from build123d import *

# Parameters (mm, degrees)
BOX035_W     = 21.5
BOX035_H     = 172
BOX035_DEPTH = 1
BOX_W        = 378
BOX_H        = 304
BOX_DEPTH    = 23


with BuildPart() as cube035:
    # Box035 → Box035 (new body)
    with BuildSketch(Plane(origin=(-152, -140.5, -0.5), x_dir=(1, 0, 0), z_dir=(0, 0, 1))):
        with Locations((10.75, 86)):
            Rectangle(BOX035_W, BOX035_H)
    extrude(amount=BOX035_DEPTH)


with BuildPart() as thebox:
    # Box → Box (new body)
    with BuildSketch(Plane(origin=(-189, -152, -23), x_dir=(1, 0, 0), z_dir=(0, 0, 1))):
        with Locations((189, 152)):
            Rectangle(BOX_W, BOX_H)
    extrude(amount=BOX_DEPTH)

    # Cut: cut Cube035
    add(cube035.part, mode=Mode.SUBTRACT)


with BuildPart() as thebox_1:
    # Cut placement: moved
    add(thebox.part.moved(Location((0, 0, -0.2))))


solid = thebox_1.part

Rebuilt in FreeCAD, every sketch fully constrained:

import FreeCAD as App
import Part
import Sketcher
Q = App.Units.Quantity

doc = App.newDocument("Part")
body = doc.addObject("PartDesign::Body", "Body")

# Sketch on XY plane
sketch1 = doc.addObject("Sketcher::SketchObject", "Sketch")
body.addObject(sketch1)
sketch1.AttachmentSupport = (doc.XY_Plane, [""])
sketch1.MapMode = "FlatFace"
sketch1.AttachmentOffset = App.Placement(App.Vector(0, 0, -0.5), App.Rotation())
sketch1.addGeometry([
    Part.LineSegment(App.Vector(-152, 32, 0), App.Vector(-152, -140, 0)),
    Part.LineSegment(App.Vector(-152, -140, 0), App.Vector(-130, -140, 0)),
    Part.LineSegment(App.Vector(-130, -140, 0), App.Vector(-130, 32, 0)),
    Part.LineSegment(App.Vector(-130, 32, 0), App.Vector(-152, 32, 0)),
], False)
sketch1.addConstraint([
    Sketcher.Constraint("Coincident", 0, 2, 1, 1),
    Sketcher.Constraint("Coincident", 1, 2, 2, 1),
    Sketcher.Constraint("Coincident", 2, 2, 3, 1),
    Sketcher.Constraint("Coincident", 3, 2, 0, 1),
    Sketcher.Constraint("Vertical", 0),
    Sketcher.Constraint("Horizontal", 1),
    Sketcher.Constraint("Vertical", 2),
    Sketcher.Constraint("Horizontal", 3),
    Sketcher.Constraint("DistanceY", 0, 2, 0, 1, Q("172 mm")),
    Sketcher.Constraint("DistanceX", 1, 1, 1, 2, Q("21.5 mm")),
    Sketcher.Constraint("DistanceX", 0, 2, -1, 1, Q("152 mm")),
    Sketcher.Constraint("DistanceY", 0, 2, -1, 1, Q("140.5 mm")),
])
pad1 = doc.addObject("PartDesign::Pad", "Pad")
body.addObject(pad1)
pad1.Profile = sketch1
pad1.Length = 1
body2 = doc.addObject("PartDesign::Body", "Body001")

# Sketch on XY plane
sketch2 = doc.addObject("Sketcher::SketchObject", "Sketch001")
body2.addObject(sketch2)
sketch2.AttachmentSupport = (doc.getObject("XY_Plane001"), [""])
sketch2.MapMode = "FlatFace"
sketch2.AttachmentOffset = App.Placement(App.Vector(0, 0, -23), App.Rotation())
sketch2.addGeometry([
    Part.LineSegment(App.Vector(-189, 152, 0), App.Vector(-189, -152, 0)),
    Part.LineSegment(App.Vector(-189, -152, 0), App.Vector(189, -152, 0)),
    Part.LineSegment(App.Vector(189, -152, 0), App.Vector(189, 152, 0)),
    Part.LineSegment(App.Vector(189, 152, 0), App.Vector(-189, 152, 0)),
], False)
sketch2.addConstraint([
    Sketcher.Constraint("Coincident", 0, 2, 1, 1),
    Sketcher.Constraint("Coincident", 1, 2, 2, 1),
    Sketcher.Constraint("Coincident", 2, 2, 3, 1),
    Sketcher.Constraint("Coincident", 3, 2, 0, 1),
    Sketcher.Constraint("Vertical", 0),
    Sketcher.Constraint("Horizontal", 1),
    Sketcher.Constraint("Vertical", 2),
    Sketcher.Constraint("Horizontal", 3),
    Sketcher.Constraint("Symmetric", 0, 2, 2, 2, -1, 1),
    Sketcher.Constraint("DistanceX", 1, 1, 1, 2, Q("378 mm")),
    Sketcher.Constraint("DistanceY", 0, 2, 0, 1, Q("304 mm")),
])
pad2 = doc.addObject("PartDesign::Pad", "Pad001")
body2.addObject(pad2)
pad2.Profile = sketch2
pad2.Length = 23
doc.recompute()

boolean = doc.addObject("PartDesign::Boolean", "Boolean")
body2.addObject(boolean)
boolean.Type = "Cut"
boolean.addObjects([body])
body3 = doc.addObject("PartDesign::Body", "Body002")
doc.recompute()

body2.Placement = App.Placement(App.Vector(0, 0, -0.2), App.Rotation(App.Vector(0, 0, 1), 0))
boolean2 = doc.addObject("PartDesign::Boolean", "Boolean001")
body3.addObject(boolean2)
boolean2.Type = "Fuse"
boolean2.addObjects([body2])

doc.recompute()
